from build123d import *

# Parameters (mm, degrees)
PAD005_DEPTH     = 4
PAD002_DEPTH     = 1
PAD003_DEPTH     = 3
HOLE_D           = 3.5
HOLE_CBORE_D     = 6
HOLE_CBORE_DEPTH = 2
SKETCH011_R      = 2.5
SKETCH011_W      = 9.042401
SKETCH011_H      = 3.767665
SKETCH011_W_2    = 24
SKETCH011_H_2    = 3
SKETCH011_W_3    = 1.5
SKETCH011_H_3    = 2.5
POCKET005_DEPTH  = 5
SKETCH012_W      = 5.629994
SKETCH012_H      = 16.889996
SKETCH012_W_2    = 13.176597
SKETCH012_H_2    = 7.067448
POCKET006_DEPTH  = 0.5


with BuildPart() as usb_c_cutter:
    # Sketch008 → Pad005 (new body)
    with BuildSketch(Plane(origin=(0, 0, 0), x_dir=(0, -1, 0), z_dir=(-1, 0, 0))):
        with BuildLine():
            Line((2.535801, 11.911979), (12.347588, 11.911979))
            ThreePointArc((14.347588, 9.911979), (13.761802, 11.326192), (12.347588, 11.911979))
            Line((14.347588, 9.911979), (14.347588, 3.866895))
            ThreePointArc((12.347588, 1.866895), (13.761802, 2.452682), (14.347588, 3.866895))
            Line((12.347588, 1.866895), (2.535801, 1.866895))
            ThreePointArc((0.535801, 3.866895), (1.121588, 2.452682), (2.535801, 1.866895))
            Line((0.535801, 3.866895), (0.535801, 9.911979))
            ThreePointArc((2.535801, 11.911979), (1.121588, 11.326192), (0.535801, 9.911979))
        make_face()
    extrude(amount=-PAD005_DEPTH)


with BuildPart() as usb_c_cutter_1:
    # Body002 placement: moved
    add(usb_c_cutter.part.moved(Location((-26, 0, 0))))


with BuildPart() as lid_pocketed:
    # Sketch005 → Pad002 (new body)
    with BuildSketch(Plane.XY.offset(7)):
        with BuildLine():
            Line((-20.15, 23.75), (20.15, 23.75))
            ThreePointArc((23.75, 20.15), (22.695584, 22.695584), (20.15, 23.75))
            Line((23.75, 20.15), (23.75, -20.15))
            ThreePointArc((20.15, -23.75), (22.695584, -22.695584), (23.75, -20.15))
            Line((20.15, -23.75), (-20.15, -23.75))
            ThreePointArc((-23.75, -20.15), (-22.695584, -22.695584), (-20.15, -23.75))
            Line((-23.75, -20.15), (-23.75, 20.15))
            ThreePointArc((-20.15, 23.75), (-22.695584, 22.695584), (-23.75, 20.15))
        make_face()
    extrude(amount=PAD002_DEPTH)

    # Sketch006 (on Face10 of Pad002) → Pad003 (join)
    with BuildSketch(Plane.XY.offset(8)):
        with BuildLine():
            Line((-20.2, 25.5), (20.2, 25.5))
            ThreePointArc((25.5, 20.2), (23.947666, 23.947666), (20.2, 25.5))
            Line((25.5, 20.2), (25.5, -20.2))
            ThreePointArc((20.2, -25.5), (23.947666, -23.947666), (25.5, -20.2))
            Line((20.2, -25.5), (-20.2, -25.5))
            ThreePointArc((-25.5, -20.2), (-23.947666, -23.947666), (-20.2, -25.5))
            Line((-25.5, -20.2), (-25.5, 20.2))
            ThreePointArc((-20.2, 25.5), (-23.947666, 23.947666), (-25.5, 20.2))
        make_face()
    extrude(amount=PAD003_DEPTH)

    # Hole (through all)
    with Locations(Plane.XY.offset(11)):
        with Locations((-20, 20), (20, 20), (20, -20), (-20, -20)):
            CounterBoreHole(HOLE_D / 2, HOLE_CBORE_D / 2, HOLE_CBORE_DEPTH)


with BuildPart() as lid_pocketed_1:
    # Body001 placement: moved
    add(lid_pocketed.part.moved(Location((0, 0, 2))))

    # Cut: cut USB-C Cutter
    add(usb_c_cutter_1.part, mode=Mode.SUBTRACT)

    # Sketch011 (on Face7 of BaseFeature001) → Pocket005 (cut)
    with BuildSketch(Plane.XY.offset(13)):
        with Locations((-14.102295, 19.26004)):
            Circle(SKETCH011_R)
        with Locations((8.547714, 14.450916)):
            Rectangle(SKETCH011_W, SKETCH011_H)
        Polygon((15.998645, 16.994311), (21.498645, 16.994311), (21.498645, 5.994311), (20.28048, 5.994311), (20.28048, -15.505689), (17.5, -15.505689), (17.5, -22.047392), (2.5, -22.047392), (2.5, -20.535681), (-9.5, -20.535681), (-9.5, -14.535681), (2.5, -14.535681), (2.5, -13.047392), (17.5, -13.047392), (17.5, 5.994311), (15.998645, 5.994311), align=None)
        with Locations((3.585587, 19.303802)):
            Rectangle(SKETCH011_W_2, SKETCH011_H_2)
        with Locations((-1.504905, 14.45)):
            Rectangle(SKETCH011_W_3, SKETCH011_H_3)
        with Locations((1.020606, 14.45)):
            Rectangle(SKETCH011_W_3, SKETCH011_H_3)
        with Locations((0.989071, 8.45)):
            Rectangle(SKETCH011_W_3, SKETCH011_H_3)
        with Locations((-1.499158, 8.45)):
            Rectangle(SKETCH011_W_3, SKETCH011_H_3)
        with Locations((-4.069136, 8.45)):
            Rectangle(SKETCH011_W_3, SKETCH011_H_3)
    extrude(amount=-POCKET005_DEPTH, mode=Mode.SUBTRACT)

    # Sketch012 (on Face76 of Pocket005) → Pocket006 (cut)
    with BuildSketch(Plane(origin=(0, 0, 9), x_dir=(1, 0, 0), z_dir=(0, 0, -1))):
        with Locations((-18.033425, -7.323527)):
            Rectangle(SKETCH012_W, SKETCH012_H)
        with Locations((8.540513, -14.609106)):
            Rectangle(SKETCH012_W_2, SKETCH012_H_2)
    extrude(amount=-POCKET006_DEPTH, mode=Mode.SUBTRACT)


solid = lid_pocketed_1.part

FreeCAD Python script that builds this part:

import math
import FreeCAD as App
import Part
import Sketcher
Q = App.Units.Quantity


def add_polygon(sketch, points):
    """Adds a closed chain of lines whose ends are joined by coincident constraints."""
    first, n = sketch.GeometryCount, len(points)
    for a, b in zip(points, points[1:] + points[:1]):
        sketch.addGeometry(Part.LineSegment(App.Vector(*a, 0), App.Vector(*b, 0)), False)
    for i in range(n):
        sketch.addConstraint(Sketcher.Constraint("Coincident", first + i, 2, first + (i + 1) % n, 1))

doc = App.newDocument("Part")
params = doc.addObject("Spreadsheet::Sheet", "Params")
for row, (alias, value) in enumerate([
    ("sketch1_radius", "2.000002 mm"),
    ("pad1_length", "4 mm"),
    ("sketch2_radius", "3.600001 mm"),
    ("sketch2_width", "40.3 mm"),
    ("pad2_length", "1 mm"),
    ("sketch3_radius", "5.3 mm"),
    ("sketch3_width", "40.4 mm"),
    ("pad3_length", "3 mm"),
    ("sketch4_diameter", "3.5 mm"),
    ("hole_diameter", "3.5 mm"),
    ("hole_cbore_diameter", "6 mm"),
    ("hole_cbore_depth", "2 mm"),
    ("sketch5_diameter", "5 mm"),
    ("sketch5_width", "15 mm"),
    ("sketch5_width2", "12 mm"),
    ("sketch5_width3", "24 mm"),
    ("sketch5_height", "11 mm"),
    ("pocket1_length", "5 mm"),
    ("pocket2_length", "0.5 mm"),
], start=1):
    params.set(f"A{row}", alias)
    params.set(f"B{row}", "=" + value)
    params.setAlias(f"B{row}", alias)

body = doc.addObject("PartDesign::Body", "Body")

# Sketch on YZ plane
sketch1 = body.newObject("Sketcher::SketchObject", "Sketch")
sketch1.AttachmentSupport = (doc.getObject("YZ_Plane"), [""])
sketch1.MapMode = "FlatFace"
sketch1.addGeometry(Part.LineSegment(App.Vector(-12.3, 11.9, 0), App.Vector(-2.5, 11.9, 0)), False)
sketch1.addGeometry(Part.ArcOfCircle(Part.Circle(App.Vector(-2.5, 9.9, 0), App.Vector(0, 0, 1), 2), math.radians(0), math.radians(90)), False)
sketch1.addGeometry(Part.LineSegment(App.Vector(-0.5, 9.9, 0), App.Vector(-0.5, 3.9, 0)), False)
sketch1.addGeometry(Part.ArcOfCircle(Part.Circle(App.Vector(-2.5, 3.9, 0), App.Vector(0, 0, 1), 2), math.radians(-90), math.radians(0)), False)
sketch1.addGeometry(Part.LineSegment(App.Vector(-2.5, 1.9, 0), App.Vector(-12.3, 1.9, 0)), False)
sketch1.addGeometry(Part.ArcOfCircle(Part.Circle(App.Vector(-12.3, 3.9, 0), App.Vector(0, 0, 1), 2), math.radians(-180), math.radians(-90)), False)
sketch1.addGeometry(Part.LineSegment(App.Vector(-14.3, 3.9, 0), App.Vector(-14.3, 9.9, 0)), False)
sketch1.addGeometry(Part.ArcOfCircle(Part.Circle(App.Vector(-12.3, 9.9, 0), App.Vector(0, 0, 1), 2), math.radians(90), math.radians(180)), False)
sketch1.addConstraint(Sketcher.Constraint("Tangent", 0, 2, 1, 2))
sketch1.addConstraint(Sketcher.Constraint("Tangent", 1, 1, 2, 1))
sketch1.addConstraint(Sketcher.Constraint("Tangent", 2, 2, 3, 2))
sketch1.addConstraint(Sketcher.Constraint("Tangent", 3, 1, 4, 1))
sketch1.addConstraint(Sketcher.Constraint("Tangent", 4, 2, 5, 2))
sketch1.addConstraint(Sketcher.Constraint("Tangent", 5, 1, 6, 1))
sketch1.addConstraint(Sketcher.Constraint("Tangent", 6, 2, 7, 2))
sketch1.addConstraint(Sketcher.Constraint("Tangent", 7, 1, 0, 1))
sketch1.addConstraint(Sketcher.Constraint("Horizontal", 0))
sketch1.addConstraint(Sketcher.Constraint("Vertical", 2))
sketch1.addConstraint(Sketcher.Constraint("Horizontal", 4))
sketch1.addConstraint(Sketcher.Constraint("Vertical", 6))
sketch1.addConstraint(Sketcher.Constraint("Equal", 1, 3))
sketch1.addConstraint(Sketcher.Constraint("Equal", 3, 5))
sketch1.addConstraint(Sketcher.Constraint("Equal", 5, 7))
sketch1.addConstraint(Sketcher.Constraint("Radius", 1, Q("2.000002 mm")))
sketch1.addConstraint(Sketcher.Constraint("DistanceX", 0, 2, -1, 1, Q("2.535801 mm")))
sketch1.addConstraint(Sketcher.Constraint("DistanceX", 0, 1, 0, 2, Q("9.811787 mm")))
sketch1.addConstraint(Sketcher.Constraint("DistanceY", 2, 2, 2, 1, Q("6.045084 mm")))
sketch1.addConstraint(Sketcher.Constraint("DistanceY", -1, 1, 7, 3, Q("9.911979 mm")))
sketch1.setExpression("Constraints[15]", "Params.sketch1_radius")
pad1 = body.newObject("PartDesign::Pad", "Pad")
pad1.Profile = sketch1
pad1.setExpression("Length", "Params.pad1_length")
body2 = doc.addObject("PartDesign::Body", "Body001")
doc.recompute()

body.Placement = App.Placement(App.Vector(-26, 0, 0), App.Rotation(App.Vector(0, 0, 1), 0))
boolean = body2.newObject("PartDesign::Boolean", "Boolean")
boolean.Type = "Fuse"
boolean.addObjects([body])
body3 = doc.addObject("PartDesign::Body", "Body002")

# Sketch on XY plane
sketch2 = body3.newObject("Sketcher::SketchObject", "Sketch001")
sketch2.AttachmentSupport = (doc.getObject("XY_Plane002"), [""])
sketch2.MapMode = "FlatFace"
sketch2.AttachmentOffset = App.Placement(App.Vector(0, 0, 7), App.Rotation())
sketch2.addGeometry(Part.LineSegment(App.Vector(20.1, 23.8, 0), App.Vector(-20.1, 23.8, 0)), False)
sketch2.addGeometry(Part.ArcOfCircle(Part.Circle(App.Vector(-20.1, 20.1, 0), App.Vector(0, 0, 1), 3.6), math.radians(90), math.radians(180)), False)
sketch2.addGeometry(Part.LineSegment(App.Vector(-23.8, 20.1, 0), App.Vector(-23.8, -20.1, 0)), False)
sketch2.addGeometry(Part.ArcOfCircle(Part.Circle(App.Vector(-20.1, -20.1, 0), App.Vector(0, 0, 1), 3.6), math.radians(-180), math.radians(-90)), False)
sketch2.addGeometry(Part.LineSegment(App.Vector(-20.1, -23.8, 0), App.Vector(20.1, -23.8, 0)), False)
sketch2.addGeometry(Part.ArcOfCircle(Part.Circle(App.Vector(20.1, -20.1, 0), App.Vector(0, 0, 1), 3.6), math.radians(-90), math.radians(0)), False)
sketch2.addGeometry(Part.LineSegment(App.Vector(23.8, -20.1, 0), App.Vector(23.8, 20.1, 0)), False)
sketch2.addGeometry(Part.ArcOfCircle(Part.Circle(App.Vector(20.1, 20.1, 0), App.Vector(0, 0, 1), 3.6), math.radians(0), math.radians(90)), False)
sketch2.addConstraint(Sketcher.Constraint("Tangent", 0, 2, 1, 1))
sketch2.addConstraint(Sketcher.Constraint("Tangent", 1, 2, 2, 1))
sketch2.addConstraint(Sketcher.Constraint("Tangent", 2, 2, 3, 1))
sketch2.addConstraint(Sketcher.Constraint("Tangent", 3, 2, 4, 1))
sketch2.addConstraint(Sketcher.Constraint("Tangent", 4, 2, 5, 1))
sketch2.addConstraint(Sketcher.Constraint("Tangent", 5, 2, 6, 1))
sketch2.addConstraint(Sketcher.Constraint("Tangent", 6, 2, 7, 1))
sketch2.addConstraint(Sketcher.Constraint("Tangent", 7, 2, 0, 1))
sketch2.addConstraint(Sketcher.Constraint("Horizontal", 0))
sketch2.addConstraint(Sketcher.Constraint("Vertical", 2))
sketch2.addConstraint(Sketcher.Constraint("Horizontal", 4))
sketch2.addConstraint(Sketcher.Constraint("Vertical", 6))
sketch2.addConstraint(Sketcher.Constraint("Equal", 1, 3))
sketch2.addConstraint(Sketcher.Constraint("Equal", 3, 5))
sketch2.addConstraint(Sketcher.Constraint("Equal", 5, 7))
sketch2.addConstraint(Sketcher.Constraint("Symmetric", 1, 3, 5, 3, -1, 1))
sketch2.addConstraint(Sketcher.Constraint("Equal", 4, 2))
sketch2.addConstraint(Sketcher.Constraint("Radius", 1, Q("3.600001 mm")))
sketch2.addConstraint(Sketcher.Constraint("DistanceX", 0, 2, 0, 1, Q("40.3 mm")))
sketch2.setExpression("Constraints[17]", "Params.sketch2_radius")
sketch2.setExpression("Constraints[18]", "Params.sketch2_width")
pad2 = body3.newObject("PartDesign::Pad", "Pad001")
pad2.Profile = sketch2
pad2.setExpression("Length", "Params.pad2_length")

# Sketch on XY plane
sketch3 = body3.newObject("Sketcher::SketchObject", "Sketch002")
sketch3.AttachmentSupport = (doc.getObject("XY_Plane002"), [""])
sketch3.MapMode = "FlatFace"
sketch3.AttachmentOffset = App.Placement(App.Vector(0, 0, 8), App.Rotation())
sketch3.addGeometry(Part.LineSegment(App.Vector(20, 26, 0), App.Vector(-20, 26, 0)), False)
sketch3.addGeometry(Part.ArcOfCircle(Part.Circle(App.Vector(-20, 20, 0), App.Vector(0, 0, 1), 5), math.radians(90), math.radians(180)), False)
sketch3.addGeometry(Part.LineSegment(App.Vector(-26, 20, 0), App.Vector(-26, -20, 0)), False)
sketch3.addGeometry(Part.ArcOfCircle(Part.Circle(App.Vector(-20, -20, 0), App.Vector(0, 0, 1), 5), math.radians(180), math.radians(270)), False)
sketch3.addGeometry(Part.LineSegment(App.Vector(-20, -26, 0), App.Vector(20, -26, 0)), False)
sketch3.addGeometry(Part.ArcOfCircle(Part.Circle(App.Vector(20, -20, 0), App.Vector(0, 0, 1), 5), math.radians(-90), math.radians(0)), False)
sketch3.addGeometry(Part.LineSegment(App.Vector(26, -20, 0), App.Vector(26, 20, 0)), False)
sketch3.addGeometry(Part.ArcOfCircle(Part.Circle(App.Vector(20, 20, 0), App.Vector(0, 0, 1), 5), math.radians(0), math.radians(90)), False)
sketch3.addConstraint(Sketcher.Constraint("Tangent", 0, 2, 1, 1))
sketch3.addConstraint(Sketcher.Constraint("Tangent", 1, 2, 2, 1))
sketch3.addConstraint(Sketcher.Constraint("Tangent", 2, 2, 3, 1))
sketch3.addConstraint(Sketcher.Constraint("Tangent", 3, 2, 4, 1))
sketch3.addConstraint(Sketcher.Constraint("Tangent", 4, 2, 5, 1))
sketch3.addConstraint(Sketcher.Constraint("Tangent", 5, 2, 6, 1))
sketch3.addConstraint(Sketcher.Constraint("Tangent", 6, 2, 7, 1))
sketch3.addConstraint(Sketcher.Constraint("Tangent", 7, 2, 0, 1))
sketch3.addConstraint(Sketcher.Constraint("Horizontal", 0))
sketch3.addConstraint(Sketcher.Constraint("Vertical", 2))
sketch3.addConstraint(Sketcher.Constraint("Horizontal", 4))
sketch3.addConstraint(Sketcher.Constraint("Vertical", 6))
sketch3.addConstraint(Sketcher.Constraint("Equal", 1, 3))
sketch3.addConstraint(Sketcher.Constraint("Equal", 3, 5))
sketch3.addConstraint(Sketcher.Constraint("Equal", 5, 7))
sketch3.addConstraint(Sketcher.Constraint("Symmetric", 1, 3, 5, 3, -1, 1))
sketch3.addConstraint(Sketcher.Constraint("Equal", 4, 2))
sketch3.addConstraint(Sketcher.Constraint("Radius", 1, Q("5.3 mm")))
sketch3.addConstraint(Sketcher.Constraint("DistanceX", 0, 2, 0, 1, Q("40.4 mm")))
sketch3.setExpression("Constraints[17]", "Params.sketch3_radius")
sketch3.setExpression("Constraints[18]", "Params.sketch3_width")
pad3 = body3.newObject("PartDesign::Pad", "Pad002")
pad3.Profile = sketch3
pad3.setExpression("Length", "Params.pad3_length")

# Sketch on XY plane
sketch4 = body3.newObject("Sketcher::SketchObject", "Sketch003")
sketch4.AttachmentSupport = (doc.getObject("XY_Plane002"), [""])
sketch4.MapMode = "FlatFace"
sketch4.AttachmentOffset = App.Placement(App.Vector(0, 0, 11), App.Rotation())
sketch4.addGeometry(Part.Circle(App.Vector(-20, 20, 0), App.Vector(0, 0, 1), 1.8), False)
sketch4.addGeometry(Part.Circle(App.Vector(20, 20, 0), App.Vector(0, 0, 1), 1.8), False)
sketch4.addGeometry(Part.Circle(App.Vector(20, -20, 0), App.Vector(0, 0, 1), 1.8), False)
sketch4.addGeometry(Part.Circle(App.Vector(-20, -20, 0), App.Vector(0, 0, 1), 1.8), False)
sketch4.addConstraint(Sketcher.Constraint("Equal", 0, 1))
sketch4.addConstraint(Sketcher.Constraint("Equal", 1, 2))
sketch4.addConstraint(Sketcher.Constraint("Equal", 2, 3))
sketch4.addConstraint(Sketcher.Constraint("Symmetric", 0, 3, 2, 3, -1, 1))
sketch4.addConstraint(Sketcher.Constraint("Symmetric", 1, 3, 3, 3, -1, 1))
sketch4.addConstraint(Sketcher.Constraint("Symmetric", 0, 3, 1, 3, -2))
sketch4.addConstraint(Sketcher.Constraint("Diameter", 0, Q("3.5 mm")))
sketch4.addConstraint(Sketcher.Constraint("DistanceX", 0, 3, -1, 1, Q("20 mm")))
sketch4.addConstraint(Sketcher.Constraint("DistanceY", -1, 1, 0, 3, Q("20 mm")))
sketch4.setExpression("Constraints[6]", "Params.sketch4_diameter")
doc.recompute()
hole = body3.newObject("PartDesign::Hole", "Hole")
hole.Profile = sketch4
hole.ThreadType = "None"
hole.setExpression("Diameter", "Params.hole_diameter")
hole.DepthType = "ThroughAll"
hole.HoleCutType = "Counterbore"
hole.setExpression("HoleCutDiameter", "Params.hole_cbore_diameter")
hole.setExpression("HoleCutDepth", "Params.hole_cbore_depth")
body4 = doc.addObject("PartDesign::Body", "Body003")
doc.recompute()

body3.Placement = App.Placement(App.Vector(0, 0, 2), App.Rotation(App.Vector(0, 0, 1), 0))
boolean2 = body4.newObject("PartDesign::Boolean", "Boolean001")
boolean2.Type = "Fuse"
boolean2.addObjects([body3])
doc.recompute()

boolean3 = body4.newObject("PartDesign::Boolean", "Boolean002")
boolean3.Type = "Cut"
boolean3.addObjects([body2])

# Sketch on XY plane
sketch5 = body4.newObject("Sketcher::SketchObject", "Sketch004")
sketch5.AttachmentSupport = (doc.getObject("XY_Plane003"), [""])
sketch5.MapMode = "FlatFace"
sketch5.AttachmentOffset = App.Placement(App.Vector(0, 0, 13), App.Rotation())
sketch5.addGeometry(Part.Circle(App.Vector(-14.1, 19.3, 0), App.Vector(0, 0, 1), 2.5), False)  # 0
add_polygon(sketch5, [(4, 16.3), (4, 12.6), (13.1, 12.6), (13.1, 16.3)])  # lines 1-4
add_polygon(sketch5, [(21.5, 17), (16, 17), (16, 6), (17.5, 6), (17.5, -13), (2.5, -13), (2.5, -14.5), (-9.5, -14.5), (-9.5, -20.5), (2.5, -20.5), (2.5, -22), (17.5, -22), (17.5, -15.5), (20.3, -15.5), (20.3, 6), (21.5, 6)])  # lines 5-20
add_polygon(sketch5, [(-8.4, 20.8), (-8.4, 17.8), (15.6, 17.8), (15.6, 20.8)])  # lines 21-24
add_polygon(sketch5, [(-2.3, 15.7), (-2.3, 13.2), (-0.8, 13.2), (-0.8, 15.7)])  # lines 25-28
add_polygon(sketch5, [(0.3, 15.7), (0.3, 13.2), (1.8, 13.2), (1.8, 15.7)])  # lines 29-32
add_polygon(sketch5, [(0.2, 9.7), (0.2, 7.2), (1.7, 7.2), (1.7, 9.7)])  # lines 33-36
add_polygon(sketch5, [(-2.2, 9.7), (-2.2, 7.2), (-0.7, 7.2), (-0.7, 9.7)])  # lines 37-40
add_polygon(sketch5, [(-4.8, 9.7), (-4.8, 7.2), (-3.3, 7.2), (-3.3, 9.7)])  # lines 41-44
sketch5.addConstraint(Sketcher.Constraint("Vertical", 1))
sketch5.addConstraint(Sketcher.Constraint("Horizontal", 2))
sketch5.addConstraint(Sketcher.Constraint("Vertical", 3))
sketch5.addConstraint(Sketcher.Constraint("Horizontal", 4))
sketch5.addConstraint(Sketcher.Constraint("Horizontal", 5))
sketch5.addConstraint(Sketcher.Constraint("Vertical", 6))
sketch5.addConstraint(Sketcher.Constraint("Horizontal", 7))
sketch5.addConstraint(Sketcher.Constraint("Vertical", 8))
sketch5.addConstraint(Sketcher.Constraint("Horizontal", 9))
sketch5.addConstraint(Sketcher.Constraint("Vertical", 10))
sketch5.addConstraint(Sketcher.Constraint("Horizontal", 11))
sketch5.addConstraint(Sketcher.Constraint("Vertical", 12))
sketch5.addConstraint(Sketcher.Constraint("Horizontal", 13))
sketch5.addConstraint(Sketcher.Constraint("Vertical", 14))
sketch5.addConstraint(Sketcher.Constraint("Horizontal", 15))
sketch5.addConstraint(Sketcher.Constraint("Vertical", 16))
sketch5.addConstraint(Sketcher.Constraint("Horizontal", 17))
sketch5.addConstraint(Sketcher.Constraint("Vertical", 18))
sketch5.addConstraint(Sketcher.Constraint("Horizontal", 19))
sketch5.addConstraint(Sketcher.Constraint("Vertical", 20))
sketch5.addConstraint(Sketcher.Constraint("Vertical", 21))
sketch5.addConstraint(Sketcher.Constraint("Horizontal", 22))
sketch5.addConstraint(Sketcher.Constraint("Vertical", 23))
sketch5.addConstraint(Sketcher.Constraint("Horizontal", 24))
sketch5.addConstraint(Sketcher.Constraint("Vertical", 25))
sketch5.addConstraint(Sketcher.Constraint("Horizontal", 26))
sketch5.addConstraint(Sketcher.Constraint("Vertical", 27))
sketch5.addConstraint(Sketcher.Constraint("Horizontal", 28))
sketch5.addConstraint(Sketcher.Constraint("Vertical", 29))
sketch5.addConstraint(Sketcher.Constraint("Horizontal", 30))
sketch5.addConstraint(Sketcher.Constraint("Vertical", 31))
sketch5.addConstraint(Sketcher.Constraint("Horizontal", 32))
sketch5.addConstraint(Sketcher.Constraint("Vertical", 33))
sketch5.addConstraint(Sketcher.Constraint("Horizontal", 34))
sketch5.addConstraint(Sketcher.Constraint("Vertical", 35))
sketch5.addConstraint(Sketcher.Constraint("Horizontal", 36))
sketch5.addConstraint(Sketcher.Constraint("Vertical", 37))
sketch5.addConstraint(Sketcher.Constraint("Horizontal", 38))
sketch5.addConstraint(Sketcher.Constraint("Vertical", 39))
sketch5.addConstraint(Sketcher.Constraint("Horizontal", 40))
sketch5.addConstraint(Sketcher.Constraint("Vertical", 41))
sketch5.addConstraint(Sketcher.Constraint("Horizontal", 42))
sketch5.addConstraint(Sketcher.Constraint("Vertical", 43))
sketch5.addConstraint(Sketcher.Constraint("Horizontal", 44))
sketch5.addConstraint(Sketcher.Constraint("Horizontal", 7, 2, 18, 2))
sketch5.addConstraint(Sketcher.Constraint("Horizontal", 26, 2, 29, 2))
sketch5.addConstraint(Sketcher.Constraint("Horizontal", 28, 2, 31, 2))
sketch5.addConstraint(Sketcher.Constraint("Horizontal", 34, 2, 37, 2))
sketch5.addConstraint(Sketcher.Constraint("Horizontal", 36, 2, 39, 2))
sketch5.addConstraint(Sketcher.Constraint("Horizontal", 38, 2, 41, 2))
sketch5.addConstraint(Sketcher.Constraint("Horizontal", 40, 2, 43, 2))
sketch5.addConstraint(Sketcher.Constraint("Vertical", 10, 2, 13, 2))
sketch5.addConstraint(Sketcher.Constraint("Vertical", 8, 2, 15, 2))
sketch5.addConstraint(Sketcher.Constraint("Equal", 28, 30))
sketch5.addConstraint(Sketcher.Constraint("Equal", 32, 34))
sketch5.addConstraint(Sketcher.Constraint("Equal", 36, 38))
sketch5.addConstraint(Sketcher.Constraint("Equal", 40, 42))
sketch5.addConstraint(Sketcher.Constraint("Equal", 31, 33))
sketch5.addConstraint(Sketcher.Constraint("Diameter", 0, Q("5 mm")))
sketch5.addConstraint(Sketcher.Constraint("DistanceX", 9, 2, 9, 1, Q("15 mm")))
sketch5.addConstraint(Sketcher.Constraint("DistanceX", 11, 2, 11, 1, Q("12 mm")))
sketch5.addConstraint(Sketcher.Constraint("DistanceX", 22, 1, 22, 2, Q("24 mm")))
sketch5.addConstraint(Sketcher.Constraint("DistanceY", 6, 2, 6, 1, Q("11 mm")))
sketch5.addConstraint(Sketcher.Constraint("DistanceY", 12, 2, 12, 1, Q("6 mm")))
sketch5.addConstraint(Sketcher.Constraint("DistanceY", 21, 2, 21, 1, Q("3 mm")))
sketch5.addConstraint(Sketcher.Constraint("DistanceX", 5, 2, 5, 1, Q("5.5 mm")))
sketch5.addConstraint(Sketcher.Constraint("DistanceX", 26, 1, 26, 2, Q("1.5 mm")))
sketch5.addConstraint(Sketcher.Constraint("DistanceY", 18, 1, 18, 2, Q("21.5 mm")))
sketch5.addConstraint(Sketcher.Constraint("DistanceY", 25, 2, 25, 1, Q("2.5 mm")))
sketch5.addConstraint(Sketcher.Constraint("DistanceY", 14, 2, 9, 2, Q("9 mm")))
sketch5.addConstraint(Sketcher.Constraint("DistanceY", 33, 2, 29, 2, Q("6 mm")))
sketch5.addConstraint(Sketcher.Constraint("DistanceX", -1, 1, 7, 2, Q("17.5 mm")))
sketch5.addConstraint(Sketcher.Constraint("DistanceY", -1, 1, 25, 2, Q("13.2 mm")))
sketch5.addConstraint(Sketcher.Constraint("DistanceX", 2, 1, 2, 2, Q("9.042401 mm")))
sketch5.addConstraint(Sketcher.Constraint("DistanceX", 17, 1, 17, 2, Q("2.78048 mm")))
sketch5.addConstraint(Sketcher.Constraint("DistanceY", 10, 2, 10, 1, Q("1.488289 mm")))
sketch5.addConstraint(Sketcher.Constraint("DistanceX", 7, 1, 7, 2, Q("1.501355 mm")))
sketch5.addConstraint(Sketcher.Constraint("DistanceY", 1, 2, 1, 1, Q("3.767665 mm")))
sketch5.addConstraint(Sketcher.Constraint("DistanceY", 8, 2, 8, 1, Q("19.041703 mm")))
sketch5.addConstraint(Sketcher.Constraint("DistanceY", -1, 1, 0, 3, Q("19.26004 mm")))
sketch5.addConstraint(Sketcher.Constraint("DistanceY", -1, 1, 3, 2, Q("16.334748 mm")))
sketch5.addConstraint(Sketcher.Constraint("DistanceY", -1, 1, 5, 2, Q("16.994311 mm")))
sketch5.addConstraint(Sketcher.Constraint("DistanceX", -1, 1, 33, 2, Q("0.239071 mm")))
sketch5.addConstraint(Sketcher.Constraint("DistanceX", 37, 2, -1, 1, Q("2.249158 mm")))
sketch5.addConstraint(Sketcher.Constraint("DistanceX", 0, 3, 1, 2, Q("18.128808 mm")))
sketch5.addConstraint(Sketcher.Constraint("DistanceX", 3, 2, 5, 2, Q("2.92973 mm")))
sketch5.addConstraint(Sketcher.Constraint("DistanceY", 1, 2, 21, 2, Q("5.236719 mm")))
sketch5.addConstraint(Sketcher.Constraint("DistanceX", 25, 2, 1, 2, Q("6.281419 mm")))
sketch5.addConstraint(Sketcher.Constraint("DistanceX", 26, 2, 29, 2, Q("1.025511 mm")))
sketch5.addConstraint(Sketcher.Constraint("DistanceX", 41, 2, 37, 2, Q("2.569978 mm")))
sketch5.addConstraint(Sketcher.Constraint("DistanceX", 21, 2, -1, 1, Q("8.414413 mm")))
sketch5.setExpression("Constraints[102]", "Params.sketch5_diameter")
sketch5.setExpression("Constraints[103]", "Params.sketch5_width")
sketch5.setExpression("Constraints[104]", "Params.sketch5_width2")
sketch5.setExpression("Constraints[105]", "Params.sketch5_width3")
sketch5.setExpression("Constraints[106]", "Params.sketch5_height")
pocket1 = body4.newObject("PartDesign::Pocket", "Pocket")
pocket1.Profile = sketch5
pocket1.setExpression("Length", "Params.pocket1_length")

# Sketch on XY plane
sketch6 = body4.newObject("Sketcher::SketchObject", "Sketch005")
sketch6.AttachmentSupport = (doc.getObject("XY_Plane003"), [""])
sketch6.MapMode = "FlatFace"
sketch6.AttachmentOffset = App.Placement(App.Vector(0, 0, 9), App.Rotation())
add_polygon(sketch6, [(-21, -1), (-21, 16), (-15, 16), (-15, -1)])  # lines 0-3
add_polygon(sketch6, [(2, 11), (2, 18), (15, 18), (15, 11)])  # lines 4-7
sketch6.addConstraint(Sketcher.Constraint("Vertical", 0))
sketch6.addConstraint(Sketcher.Constraint("Horizontal", 1))
sketch6.addConstraint(Sketcher.Constraint("Vertical", 2))
sketch6.addConstraint(Sketcher.Constraint("Horizontal", 3))
sketch6.addConstraint(Sketcher.Constraint("Vertical", 4))
sketch6.addConstraint(Sketcher.Constraint("Horizontal", 5))
sketch6.addConstraint(Sketcher.Constraint("Vertical", 6))
sketch6.addConstraint(Sketcher.Constraint("Horizontal", 7))
sketch6.addConstraint(Sketcher.Constraint("DistanceY", 4, 1, 4, 2, Q("7.067448 mm")))
sketch6.addConstraint(Sketcher.Constraint("DistanceY", 2, 2, 4, 2, Q("19.264301 mm")))
sketch6.addConstraint(Sketcher.Constraint("DistanceX", 1, 1, 1, 2, Q("5.629994 mm")))
sketch6.addConstraint(Sketcher.Constraint("DistanceX", 5, 1, 5, 2, Q("13.176597 mm")))
sketch6.addConstraint(Sketcher.Constraint("DistanceY", 0, 1, 0, 2, Q("16.889996 mm")))
sketch6.addConstraint(Sketcher.Constraint("DistanceX", 0, 2, -1, 1, Q("20.848422 mm")))
sketch6.addConstraint(Sketcher.Constraint("DistanceY", 2, 2, -1, 1, Q("1.121471 mm")))
sketch6.addConstraint(Sketcher.Constraint("DistanceX", -1, 1, 5, 2, Q("15.128811 mm")))
pocket2 = body4.newObject("PartDesign::Pocket", "Pocket001")
pocket2.Profile = sketch6
pocket2.setExpression("Length", "Params.pocket2_length")
pocket2.Reversed = True

doc.recompute()
